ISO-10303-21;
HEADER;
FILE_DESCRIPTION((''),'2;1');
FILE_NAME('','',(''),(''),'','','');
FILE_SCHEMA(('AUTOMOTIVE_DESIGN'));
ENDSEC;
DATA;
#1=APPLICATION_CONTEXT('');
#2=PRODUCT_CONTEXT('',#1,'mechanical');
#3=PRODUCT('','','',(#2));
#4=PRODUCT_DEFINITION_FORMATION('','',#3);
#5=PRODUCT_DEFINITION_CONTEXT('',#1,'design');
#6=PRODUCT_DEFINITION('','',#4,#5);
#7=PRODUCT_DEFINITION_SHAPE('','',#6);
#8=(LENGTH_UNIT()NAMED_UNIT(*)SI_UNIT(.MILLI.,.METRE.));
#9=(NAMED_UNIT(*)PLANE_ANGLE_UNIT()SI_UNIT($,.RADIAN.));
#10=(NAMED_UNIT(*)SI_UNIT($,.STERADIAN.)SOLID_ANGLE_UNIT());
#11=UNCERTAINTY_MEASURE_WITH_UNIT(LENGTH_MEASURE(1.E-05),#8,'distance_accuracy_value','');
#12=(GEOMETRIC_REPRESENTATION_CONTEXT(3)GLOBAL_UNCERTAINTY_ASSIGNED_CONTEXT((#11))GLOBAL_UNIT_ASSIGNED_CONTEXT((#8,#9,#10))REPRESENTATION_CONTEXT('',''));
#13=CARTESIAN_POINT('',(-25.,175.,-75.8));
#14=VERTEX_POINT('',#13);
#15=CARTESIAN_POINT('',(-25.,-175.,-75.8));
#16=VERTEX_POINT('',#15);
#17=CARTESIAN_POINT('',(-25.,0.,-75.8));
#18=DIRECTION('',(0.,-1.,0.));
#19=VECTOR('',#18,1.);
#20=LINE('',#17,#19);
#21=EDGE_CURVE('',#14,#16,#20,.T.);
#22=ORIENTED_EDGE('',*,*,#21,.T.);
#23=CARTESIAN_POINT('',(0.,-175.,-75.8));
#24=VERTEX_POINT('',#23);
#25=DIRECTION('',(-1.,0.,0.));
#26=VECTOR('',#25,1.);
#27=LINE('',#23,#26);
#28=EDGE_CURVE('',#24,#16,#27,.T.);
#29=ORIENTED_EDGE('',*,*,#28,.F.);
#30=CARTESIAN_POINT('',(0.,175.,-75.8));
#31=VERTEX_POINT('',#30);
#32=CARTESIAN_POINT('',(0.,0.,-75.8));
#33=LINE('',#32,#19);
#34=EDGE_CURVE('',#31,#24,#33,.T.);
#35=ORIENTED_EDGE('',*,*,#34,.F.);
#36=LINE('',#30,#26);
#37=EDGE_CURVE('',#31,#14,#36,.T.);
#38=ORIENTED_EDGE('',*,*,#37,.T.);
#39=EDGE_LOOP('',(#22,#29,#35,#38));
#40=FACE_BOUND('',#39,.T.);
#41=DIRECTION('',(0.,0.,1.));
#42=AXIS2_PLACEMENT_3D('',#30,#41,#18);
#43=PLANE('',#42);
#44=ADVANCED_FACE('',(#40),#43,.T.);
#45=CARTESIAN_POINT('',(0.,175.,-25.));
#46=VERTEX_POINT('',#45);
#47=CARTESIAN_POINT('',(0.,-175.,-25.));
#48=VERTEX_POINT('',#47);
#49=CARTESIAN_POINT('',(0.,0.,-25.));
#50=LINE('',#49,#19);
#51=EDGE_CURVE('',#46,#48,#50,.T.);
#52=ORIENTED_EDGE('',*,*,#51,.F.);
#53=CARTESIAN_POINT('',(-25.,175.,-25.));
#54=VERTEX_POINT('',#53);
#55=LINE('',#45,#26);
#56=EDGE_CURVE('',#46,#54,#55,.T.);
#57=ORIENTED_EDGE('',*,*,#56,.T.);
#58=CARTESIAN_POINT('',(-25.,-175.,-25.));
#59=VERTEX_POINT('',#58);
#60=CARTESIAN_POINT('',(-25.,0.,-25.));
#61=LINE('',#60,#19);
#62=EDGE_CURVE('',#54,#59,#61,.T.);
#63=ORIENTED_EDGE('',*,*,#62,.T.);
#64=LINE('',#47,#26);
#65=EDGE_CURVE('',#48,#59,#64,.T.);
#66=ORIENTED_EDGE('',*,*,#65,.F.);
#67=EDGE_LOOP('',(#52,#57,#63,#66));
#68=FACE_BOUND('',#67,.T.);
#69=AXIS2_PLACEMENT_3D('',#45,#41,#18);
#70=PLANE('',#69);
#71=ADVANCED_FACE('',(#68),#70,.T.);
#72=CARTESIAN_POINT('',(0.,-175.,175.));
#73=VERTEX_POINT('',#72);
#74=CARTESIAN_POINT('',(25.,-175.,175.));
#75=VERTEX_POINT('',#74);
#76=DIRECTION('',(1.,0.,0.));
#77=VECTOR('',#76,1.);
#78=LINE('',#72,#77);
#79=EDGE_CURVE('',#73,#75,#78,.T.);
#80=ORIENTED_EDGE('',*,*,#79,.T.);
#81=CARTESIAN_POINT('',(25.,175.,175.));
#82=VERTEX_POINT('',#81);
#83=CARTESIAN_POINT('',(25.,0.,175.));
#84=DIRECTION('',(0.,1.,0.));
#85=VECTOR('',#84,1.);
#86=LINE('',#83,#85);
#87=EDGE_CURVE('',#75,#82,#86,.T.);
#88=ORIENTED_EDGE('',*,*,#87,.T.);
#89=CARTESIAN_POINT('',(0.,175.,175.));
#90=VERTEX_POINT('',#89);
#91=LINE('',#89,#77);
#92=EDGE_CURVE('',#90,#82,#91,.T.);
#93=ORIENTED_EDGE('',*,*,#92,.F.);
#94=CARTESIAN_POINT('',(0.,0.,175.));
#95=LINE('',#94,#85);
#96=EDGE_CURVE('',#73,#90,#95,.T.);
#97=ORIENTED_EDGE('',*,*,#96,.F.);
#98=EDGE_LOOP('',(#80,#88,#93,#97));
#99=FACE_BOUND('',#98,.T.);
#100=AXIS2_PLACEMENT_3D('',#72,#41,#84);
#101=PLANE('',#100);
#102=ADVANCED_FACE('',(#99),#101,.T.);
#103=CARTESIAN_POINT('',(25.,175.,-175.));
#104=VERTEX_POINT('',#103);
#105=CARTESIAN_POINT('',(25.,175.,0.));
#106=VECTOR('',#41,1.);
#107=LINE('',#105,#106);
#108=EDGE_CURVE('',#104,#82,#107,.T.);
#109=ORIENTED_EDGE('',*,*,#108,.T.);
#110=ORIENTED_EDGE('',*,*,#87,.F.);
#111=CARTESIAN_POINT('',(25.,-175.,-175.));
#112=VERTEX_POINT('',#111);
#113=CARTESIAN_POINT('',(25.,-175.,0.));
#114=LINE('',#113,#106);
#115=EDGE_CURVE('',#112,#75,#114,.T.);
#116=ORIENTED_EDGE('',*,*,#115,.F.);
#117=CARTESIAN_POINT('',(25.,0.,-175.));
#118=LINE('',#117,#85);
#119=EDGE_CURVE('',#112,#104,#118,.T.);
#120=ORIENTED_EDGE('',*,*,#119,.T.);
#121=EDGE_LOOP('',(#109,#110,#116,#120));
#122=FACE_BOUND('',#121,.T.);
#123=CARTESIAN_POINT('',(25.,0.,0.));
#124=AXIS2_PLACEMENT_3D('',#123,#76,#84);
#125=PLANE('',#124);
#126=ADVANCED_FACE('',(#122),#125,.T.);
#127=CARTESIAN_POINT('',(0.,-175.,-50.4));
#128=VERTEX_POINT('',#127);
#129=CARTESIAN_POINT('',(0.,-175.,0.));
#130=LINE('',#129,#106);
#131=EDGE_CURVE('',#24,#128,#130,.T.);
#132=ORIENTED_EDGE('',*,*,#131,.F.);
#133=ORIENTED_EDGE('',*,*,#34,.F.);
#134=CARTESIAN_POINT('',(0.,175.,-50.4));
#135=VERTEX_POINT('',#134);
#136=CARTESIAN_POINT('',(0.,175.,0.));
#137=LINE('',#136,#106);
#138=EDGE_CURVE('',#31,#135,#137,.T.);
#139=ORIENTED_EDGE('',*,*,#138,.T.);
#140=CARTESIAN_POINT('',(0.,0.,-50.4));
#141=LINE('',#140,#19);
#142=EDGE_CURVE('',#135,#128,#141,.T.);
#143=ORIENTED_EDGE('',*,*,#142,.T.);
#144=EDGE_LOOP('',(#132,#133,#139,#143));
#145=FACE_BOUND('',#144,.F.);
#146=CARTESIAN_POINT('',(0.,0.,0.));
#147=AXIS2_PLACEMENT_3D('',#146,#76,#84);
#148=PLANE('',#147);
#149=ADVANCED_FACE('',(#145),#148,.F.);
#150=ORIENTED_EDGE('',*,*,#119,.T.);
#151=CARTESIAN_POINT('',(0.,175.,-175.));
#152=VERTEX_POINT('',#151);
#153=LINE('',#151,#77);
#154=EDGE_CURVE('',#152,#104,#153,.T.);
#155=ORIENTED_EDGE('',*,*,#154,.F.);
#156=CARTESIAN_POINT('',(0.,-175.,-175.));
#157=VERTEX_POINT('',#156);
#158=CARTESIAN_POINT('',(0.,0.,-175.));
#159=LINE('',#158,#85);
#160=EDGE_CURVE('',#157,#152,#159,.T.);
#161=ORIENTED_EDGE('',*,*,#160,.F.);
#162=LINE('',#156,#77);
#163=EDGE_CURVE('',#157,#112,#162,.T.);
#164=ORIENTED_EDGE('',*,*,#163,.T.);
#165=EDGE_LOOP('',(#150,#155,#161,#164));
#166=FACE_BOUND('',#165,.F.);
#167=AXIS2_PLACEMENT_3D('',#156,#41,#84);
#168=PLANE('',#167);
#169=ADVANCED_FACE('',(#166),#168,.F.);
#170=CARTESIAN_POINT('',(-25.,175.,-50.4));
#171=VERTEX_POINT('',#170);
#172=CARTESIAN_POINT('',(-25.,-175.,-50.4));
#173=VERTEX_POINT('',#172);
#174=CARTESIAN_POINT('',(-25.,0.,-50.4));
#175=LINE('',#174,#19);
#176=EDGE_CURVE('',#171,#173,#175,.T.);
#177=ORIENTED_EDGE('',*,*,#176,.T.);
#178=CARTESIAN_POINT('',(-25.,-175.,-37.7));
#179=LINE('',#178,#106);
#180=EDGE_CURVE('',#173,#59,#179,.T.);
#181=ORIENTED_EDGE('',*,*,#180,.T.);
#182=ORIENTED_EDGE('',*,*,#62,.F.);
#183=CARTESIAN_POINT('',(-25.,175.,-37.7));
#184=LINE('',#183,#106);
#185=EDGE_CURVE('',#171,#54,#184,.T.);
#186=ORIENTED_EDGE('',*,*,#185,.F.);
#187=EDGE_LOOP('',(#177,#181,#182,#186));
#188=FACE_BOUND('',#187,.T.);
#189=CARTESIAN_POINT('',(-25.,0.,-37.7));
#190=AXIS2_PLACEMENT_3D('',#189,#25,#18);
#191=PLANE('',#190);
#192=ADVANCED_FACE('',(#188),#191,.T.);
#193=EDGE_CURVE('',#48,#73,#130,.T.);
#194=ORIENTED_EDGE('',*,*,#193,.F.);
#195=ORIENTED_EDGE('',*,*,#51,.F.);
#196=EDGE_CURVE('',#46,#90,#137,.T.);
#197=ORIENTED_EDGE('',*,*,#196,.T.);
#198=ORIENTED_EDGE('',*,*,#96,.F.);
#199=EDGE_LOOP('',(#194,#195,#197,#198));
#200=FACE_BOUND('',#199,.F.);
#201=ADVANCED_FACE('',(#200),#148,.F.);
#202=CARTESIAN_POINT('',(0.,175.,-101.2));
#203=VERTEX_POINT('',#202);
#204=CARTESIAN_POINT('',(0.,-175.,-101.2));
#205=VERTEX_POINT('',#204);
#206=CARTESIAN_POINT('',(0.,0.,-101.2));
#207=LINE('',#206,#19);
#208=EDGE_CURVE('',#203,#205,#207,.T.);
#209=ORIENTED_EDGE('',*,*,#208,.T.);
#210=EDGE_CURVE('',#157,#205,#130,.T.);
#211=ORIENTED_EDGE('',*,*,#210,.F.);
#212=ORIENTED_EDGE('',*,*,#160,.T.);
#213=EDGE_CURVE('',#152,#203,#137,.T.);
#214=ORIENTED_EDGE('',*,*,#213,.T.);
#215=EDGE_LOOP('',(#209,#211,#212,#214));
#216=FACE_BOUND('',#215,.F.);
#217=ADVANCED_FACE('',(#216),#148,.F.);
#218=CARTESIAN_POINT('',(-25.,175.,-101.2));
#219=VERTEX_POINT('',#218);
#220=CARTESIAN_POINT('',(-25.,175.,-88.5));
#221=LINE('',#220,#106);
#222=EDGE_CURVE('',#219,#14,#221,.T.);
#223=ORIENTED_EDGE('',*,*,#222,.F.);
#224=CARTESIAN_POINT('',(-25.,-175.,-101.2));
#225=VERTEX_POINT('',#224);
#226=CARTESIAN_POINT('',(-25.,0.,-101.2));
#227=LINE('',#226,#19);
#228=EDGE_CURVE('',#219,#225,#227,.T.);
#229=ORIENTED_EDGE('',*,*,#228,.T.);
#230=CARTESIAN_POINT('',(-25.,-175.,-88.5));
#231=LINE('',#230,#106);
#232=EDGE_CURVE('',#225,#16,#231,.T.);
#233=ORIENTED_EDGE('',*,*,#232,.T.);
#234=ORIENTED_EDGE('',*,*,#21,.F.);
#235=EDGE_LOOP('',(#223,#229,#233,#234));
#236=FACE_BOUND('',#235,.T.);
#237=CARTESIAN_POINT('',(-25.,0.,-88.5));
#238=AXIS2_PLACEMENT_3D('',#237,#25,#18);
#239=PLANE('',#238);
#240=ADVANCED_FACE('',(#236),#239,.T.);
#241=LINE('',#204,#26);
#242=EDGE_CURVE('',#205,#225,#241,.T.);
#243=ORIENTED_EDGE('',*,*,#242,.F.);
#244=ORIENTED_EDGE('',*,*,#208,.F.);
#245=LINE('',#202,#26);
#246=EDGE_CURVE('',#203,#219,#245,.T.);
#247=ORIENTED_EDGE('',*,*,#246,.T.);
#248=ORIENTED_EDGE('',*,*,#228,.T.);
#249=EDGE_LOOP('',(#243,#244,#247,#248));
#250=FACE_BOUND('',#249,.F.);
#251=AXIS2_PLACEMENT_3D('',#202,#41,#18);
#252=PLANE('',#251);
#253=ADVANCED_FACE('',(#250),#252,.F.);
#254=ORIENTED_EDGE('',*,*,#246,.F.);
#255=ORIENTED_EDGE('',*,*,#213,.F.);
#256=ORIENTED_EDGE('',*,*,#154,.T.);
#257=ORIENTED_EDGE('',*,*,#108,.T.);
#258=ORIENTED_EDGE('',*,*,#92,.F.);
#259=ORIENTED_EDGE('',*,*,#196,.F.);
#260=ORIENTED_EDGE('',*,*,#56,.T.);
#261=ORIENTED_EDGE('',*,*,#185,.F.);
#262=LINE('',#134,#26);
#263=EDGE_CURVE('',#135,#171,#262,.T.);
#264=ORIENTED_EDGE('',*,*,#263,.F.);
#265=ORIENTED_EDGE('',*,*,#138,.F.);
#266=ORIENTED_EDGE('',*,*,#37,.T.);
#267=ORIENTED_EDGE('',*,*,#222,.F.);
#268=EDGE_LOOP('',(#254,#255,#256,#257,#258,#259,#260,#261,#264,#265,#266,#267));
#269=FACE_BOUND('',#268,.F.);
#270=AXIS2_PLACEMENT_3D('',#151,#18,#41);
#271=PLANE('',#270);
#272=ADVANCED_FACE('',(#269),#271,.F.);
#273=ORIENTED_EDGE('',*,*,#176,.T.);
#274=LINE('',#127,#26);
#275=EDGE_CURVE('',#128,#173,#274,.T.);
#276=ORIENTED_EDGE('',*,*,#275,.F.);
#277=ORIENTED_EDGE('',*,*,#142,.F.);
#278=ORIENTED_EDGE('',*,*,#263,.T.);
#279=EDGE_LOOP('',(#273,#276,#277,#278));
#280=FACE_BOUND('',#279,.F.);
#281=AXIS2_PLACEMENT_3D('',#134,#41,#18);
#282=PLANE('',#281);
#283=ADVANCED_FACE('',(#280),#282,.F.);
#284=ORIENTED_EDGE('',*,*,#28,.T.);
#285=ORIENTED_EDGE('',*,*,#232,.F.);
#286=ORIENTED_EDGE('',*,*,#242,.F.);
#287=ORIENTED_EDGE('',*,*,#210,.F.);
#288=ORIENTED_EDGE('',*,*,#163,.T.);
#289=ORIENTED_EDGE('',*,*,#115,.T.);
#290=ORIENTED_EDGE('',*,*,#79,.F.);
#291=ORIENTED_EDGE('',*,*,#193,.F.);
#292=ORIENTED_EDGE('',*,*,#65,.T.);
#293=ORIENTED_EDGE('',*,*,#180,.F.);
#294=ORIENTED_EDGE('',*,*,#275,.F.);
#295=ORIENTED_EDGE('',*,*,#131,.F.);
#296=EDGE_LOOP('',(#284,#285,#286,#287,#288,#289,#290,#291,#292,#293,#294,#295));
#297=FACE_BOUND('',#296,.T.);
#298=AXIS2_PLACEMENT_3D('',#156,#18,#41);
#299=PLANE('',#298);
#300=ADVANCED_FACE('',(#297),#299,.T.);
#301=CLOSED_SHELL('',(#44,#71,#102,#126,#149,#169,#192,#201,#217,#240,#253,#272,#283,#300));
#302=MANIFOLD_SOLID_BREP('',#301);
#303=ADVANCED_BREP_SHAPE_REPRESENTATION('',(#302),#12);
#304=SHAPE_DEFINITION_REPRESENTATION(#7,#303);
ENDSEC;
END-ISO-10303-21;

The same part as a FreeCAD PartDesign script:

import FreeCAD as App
import Part
import Sketcher
from FreeCAD import Vector


def add_polygon(sketch, points):
    """Adds a closed chain of lines whose ends are joined by coincident constraints."""
    first, n = sketch.GeometryCount, len(points)
    for a, b in zip(points, points[1:] + points[:1]):
        sketch.addGeometry(Part.LineSegment(App.Vector(*a, 0), App.Vector(*b, 0)), False)
    for i in range(n):
        sketch.addConstraint(Sketcher.Constraint("Coincident", first + i, 2, first + (i + 1) % n, 1))

doc = App.newDocument("Part")
body = doc.addObject("PartDesign::Body", "Body")

# Sketch on YZ plane
sketch1 = body.newObject("Sketcher::SketchObject", "Sketch")
sketch1.AttachmentSupport = (doc.getObject("YZ_Plane"), [""])
sketch1.MapMode = "FlatFace"
add_polygon(sketch1, [(-175, 175), (-175, -175), (175, -175), (175, 175)])  # lines 0-3
sketch1.addConstraint([
    Sketcher.Constraint("Vertical", 0),
    Sketcher.Constraint("Horizontal", 1),
    Sketcher.Constraint("Vertical", 2),
    Sketcher.Constraint("Horizontal", 3),
    Sketcher.Constraint("Symmetric", 0, 2, 2, 2, -1, 1),
    Sketcher.Constraint("Equal", 3, 0),
    Sketcher.Constraint("DistanceX", 1, 1, 1, 2, 350.0),
])
pad1 = body.newObject("PartDesign::Pad", "Pad")
pad1.Profile = sketch1
pad1.Length = 25

# Sketch on YZ plane
sketch2 = body.newObject("Sketcher::SketchObject", "Sketch001")
sketch2.AttachmentSupport = (doc.getObject("YZ_Plane"), [""])
sketch2.MapMode = "FlatFace"
add_polygon(sketch2, [(175, -25), (175, -50), (-175, -50), (-175, -25)])  # lines 0-3
add_polygon(sketch2, [(175, -76), (175, -101), (-175, -101), (-175, -76)])  # lines 4-7
sketch2.addConstraint([
    Sketcher.Constraint("Vertical", 0),
    Sketcher.Constraint("Horizontal", 1),
    Sketcher.Constraint("Vertical", 2),
    Sketcher.Constraint("Horizontal", 3),
    Sketcher.Constraint("Vertical", 4),
    Sketcher.Constraint("Horizontal", 5),
    Sketcher.Constraint("Vertical", 6),
    Sketcher.Constraint("Horizontal", 7),
    Sketcher.Constraint("Vertical", 3, 2, 4, 2),
    Sketcher.Constraint("Vertical", 2, 2, 5, 2),
    Sketcher.Constraint("Equal", 2, 4),
    Sketcher.Constraint("DistanceX", 1, 2, 1, 1, 350.0),
    Sketcher.Constraint("DistanceY", 0, 2, 0, 1, 25.4),
    Sketcher.Constraint("DistanceX", -1, 1, 0, 2, 175.0),
    Sketcher.Constraint("DistanceY", 2, 2, -1, 1, 25.0),
    Sketcher.Constraint("DistanceY", 4, 2, -1, 1, 101.2),
])
pad2 = body.newObject("PartDesign::Pad", "Pad001")
pad2.Profile = sketch2
pad2.Length = 25
pad2.Reversed = True

doc.recompute()
